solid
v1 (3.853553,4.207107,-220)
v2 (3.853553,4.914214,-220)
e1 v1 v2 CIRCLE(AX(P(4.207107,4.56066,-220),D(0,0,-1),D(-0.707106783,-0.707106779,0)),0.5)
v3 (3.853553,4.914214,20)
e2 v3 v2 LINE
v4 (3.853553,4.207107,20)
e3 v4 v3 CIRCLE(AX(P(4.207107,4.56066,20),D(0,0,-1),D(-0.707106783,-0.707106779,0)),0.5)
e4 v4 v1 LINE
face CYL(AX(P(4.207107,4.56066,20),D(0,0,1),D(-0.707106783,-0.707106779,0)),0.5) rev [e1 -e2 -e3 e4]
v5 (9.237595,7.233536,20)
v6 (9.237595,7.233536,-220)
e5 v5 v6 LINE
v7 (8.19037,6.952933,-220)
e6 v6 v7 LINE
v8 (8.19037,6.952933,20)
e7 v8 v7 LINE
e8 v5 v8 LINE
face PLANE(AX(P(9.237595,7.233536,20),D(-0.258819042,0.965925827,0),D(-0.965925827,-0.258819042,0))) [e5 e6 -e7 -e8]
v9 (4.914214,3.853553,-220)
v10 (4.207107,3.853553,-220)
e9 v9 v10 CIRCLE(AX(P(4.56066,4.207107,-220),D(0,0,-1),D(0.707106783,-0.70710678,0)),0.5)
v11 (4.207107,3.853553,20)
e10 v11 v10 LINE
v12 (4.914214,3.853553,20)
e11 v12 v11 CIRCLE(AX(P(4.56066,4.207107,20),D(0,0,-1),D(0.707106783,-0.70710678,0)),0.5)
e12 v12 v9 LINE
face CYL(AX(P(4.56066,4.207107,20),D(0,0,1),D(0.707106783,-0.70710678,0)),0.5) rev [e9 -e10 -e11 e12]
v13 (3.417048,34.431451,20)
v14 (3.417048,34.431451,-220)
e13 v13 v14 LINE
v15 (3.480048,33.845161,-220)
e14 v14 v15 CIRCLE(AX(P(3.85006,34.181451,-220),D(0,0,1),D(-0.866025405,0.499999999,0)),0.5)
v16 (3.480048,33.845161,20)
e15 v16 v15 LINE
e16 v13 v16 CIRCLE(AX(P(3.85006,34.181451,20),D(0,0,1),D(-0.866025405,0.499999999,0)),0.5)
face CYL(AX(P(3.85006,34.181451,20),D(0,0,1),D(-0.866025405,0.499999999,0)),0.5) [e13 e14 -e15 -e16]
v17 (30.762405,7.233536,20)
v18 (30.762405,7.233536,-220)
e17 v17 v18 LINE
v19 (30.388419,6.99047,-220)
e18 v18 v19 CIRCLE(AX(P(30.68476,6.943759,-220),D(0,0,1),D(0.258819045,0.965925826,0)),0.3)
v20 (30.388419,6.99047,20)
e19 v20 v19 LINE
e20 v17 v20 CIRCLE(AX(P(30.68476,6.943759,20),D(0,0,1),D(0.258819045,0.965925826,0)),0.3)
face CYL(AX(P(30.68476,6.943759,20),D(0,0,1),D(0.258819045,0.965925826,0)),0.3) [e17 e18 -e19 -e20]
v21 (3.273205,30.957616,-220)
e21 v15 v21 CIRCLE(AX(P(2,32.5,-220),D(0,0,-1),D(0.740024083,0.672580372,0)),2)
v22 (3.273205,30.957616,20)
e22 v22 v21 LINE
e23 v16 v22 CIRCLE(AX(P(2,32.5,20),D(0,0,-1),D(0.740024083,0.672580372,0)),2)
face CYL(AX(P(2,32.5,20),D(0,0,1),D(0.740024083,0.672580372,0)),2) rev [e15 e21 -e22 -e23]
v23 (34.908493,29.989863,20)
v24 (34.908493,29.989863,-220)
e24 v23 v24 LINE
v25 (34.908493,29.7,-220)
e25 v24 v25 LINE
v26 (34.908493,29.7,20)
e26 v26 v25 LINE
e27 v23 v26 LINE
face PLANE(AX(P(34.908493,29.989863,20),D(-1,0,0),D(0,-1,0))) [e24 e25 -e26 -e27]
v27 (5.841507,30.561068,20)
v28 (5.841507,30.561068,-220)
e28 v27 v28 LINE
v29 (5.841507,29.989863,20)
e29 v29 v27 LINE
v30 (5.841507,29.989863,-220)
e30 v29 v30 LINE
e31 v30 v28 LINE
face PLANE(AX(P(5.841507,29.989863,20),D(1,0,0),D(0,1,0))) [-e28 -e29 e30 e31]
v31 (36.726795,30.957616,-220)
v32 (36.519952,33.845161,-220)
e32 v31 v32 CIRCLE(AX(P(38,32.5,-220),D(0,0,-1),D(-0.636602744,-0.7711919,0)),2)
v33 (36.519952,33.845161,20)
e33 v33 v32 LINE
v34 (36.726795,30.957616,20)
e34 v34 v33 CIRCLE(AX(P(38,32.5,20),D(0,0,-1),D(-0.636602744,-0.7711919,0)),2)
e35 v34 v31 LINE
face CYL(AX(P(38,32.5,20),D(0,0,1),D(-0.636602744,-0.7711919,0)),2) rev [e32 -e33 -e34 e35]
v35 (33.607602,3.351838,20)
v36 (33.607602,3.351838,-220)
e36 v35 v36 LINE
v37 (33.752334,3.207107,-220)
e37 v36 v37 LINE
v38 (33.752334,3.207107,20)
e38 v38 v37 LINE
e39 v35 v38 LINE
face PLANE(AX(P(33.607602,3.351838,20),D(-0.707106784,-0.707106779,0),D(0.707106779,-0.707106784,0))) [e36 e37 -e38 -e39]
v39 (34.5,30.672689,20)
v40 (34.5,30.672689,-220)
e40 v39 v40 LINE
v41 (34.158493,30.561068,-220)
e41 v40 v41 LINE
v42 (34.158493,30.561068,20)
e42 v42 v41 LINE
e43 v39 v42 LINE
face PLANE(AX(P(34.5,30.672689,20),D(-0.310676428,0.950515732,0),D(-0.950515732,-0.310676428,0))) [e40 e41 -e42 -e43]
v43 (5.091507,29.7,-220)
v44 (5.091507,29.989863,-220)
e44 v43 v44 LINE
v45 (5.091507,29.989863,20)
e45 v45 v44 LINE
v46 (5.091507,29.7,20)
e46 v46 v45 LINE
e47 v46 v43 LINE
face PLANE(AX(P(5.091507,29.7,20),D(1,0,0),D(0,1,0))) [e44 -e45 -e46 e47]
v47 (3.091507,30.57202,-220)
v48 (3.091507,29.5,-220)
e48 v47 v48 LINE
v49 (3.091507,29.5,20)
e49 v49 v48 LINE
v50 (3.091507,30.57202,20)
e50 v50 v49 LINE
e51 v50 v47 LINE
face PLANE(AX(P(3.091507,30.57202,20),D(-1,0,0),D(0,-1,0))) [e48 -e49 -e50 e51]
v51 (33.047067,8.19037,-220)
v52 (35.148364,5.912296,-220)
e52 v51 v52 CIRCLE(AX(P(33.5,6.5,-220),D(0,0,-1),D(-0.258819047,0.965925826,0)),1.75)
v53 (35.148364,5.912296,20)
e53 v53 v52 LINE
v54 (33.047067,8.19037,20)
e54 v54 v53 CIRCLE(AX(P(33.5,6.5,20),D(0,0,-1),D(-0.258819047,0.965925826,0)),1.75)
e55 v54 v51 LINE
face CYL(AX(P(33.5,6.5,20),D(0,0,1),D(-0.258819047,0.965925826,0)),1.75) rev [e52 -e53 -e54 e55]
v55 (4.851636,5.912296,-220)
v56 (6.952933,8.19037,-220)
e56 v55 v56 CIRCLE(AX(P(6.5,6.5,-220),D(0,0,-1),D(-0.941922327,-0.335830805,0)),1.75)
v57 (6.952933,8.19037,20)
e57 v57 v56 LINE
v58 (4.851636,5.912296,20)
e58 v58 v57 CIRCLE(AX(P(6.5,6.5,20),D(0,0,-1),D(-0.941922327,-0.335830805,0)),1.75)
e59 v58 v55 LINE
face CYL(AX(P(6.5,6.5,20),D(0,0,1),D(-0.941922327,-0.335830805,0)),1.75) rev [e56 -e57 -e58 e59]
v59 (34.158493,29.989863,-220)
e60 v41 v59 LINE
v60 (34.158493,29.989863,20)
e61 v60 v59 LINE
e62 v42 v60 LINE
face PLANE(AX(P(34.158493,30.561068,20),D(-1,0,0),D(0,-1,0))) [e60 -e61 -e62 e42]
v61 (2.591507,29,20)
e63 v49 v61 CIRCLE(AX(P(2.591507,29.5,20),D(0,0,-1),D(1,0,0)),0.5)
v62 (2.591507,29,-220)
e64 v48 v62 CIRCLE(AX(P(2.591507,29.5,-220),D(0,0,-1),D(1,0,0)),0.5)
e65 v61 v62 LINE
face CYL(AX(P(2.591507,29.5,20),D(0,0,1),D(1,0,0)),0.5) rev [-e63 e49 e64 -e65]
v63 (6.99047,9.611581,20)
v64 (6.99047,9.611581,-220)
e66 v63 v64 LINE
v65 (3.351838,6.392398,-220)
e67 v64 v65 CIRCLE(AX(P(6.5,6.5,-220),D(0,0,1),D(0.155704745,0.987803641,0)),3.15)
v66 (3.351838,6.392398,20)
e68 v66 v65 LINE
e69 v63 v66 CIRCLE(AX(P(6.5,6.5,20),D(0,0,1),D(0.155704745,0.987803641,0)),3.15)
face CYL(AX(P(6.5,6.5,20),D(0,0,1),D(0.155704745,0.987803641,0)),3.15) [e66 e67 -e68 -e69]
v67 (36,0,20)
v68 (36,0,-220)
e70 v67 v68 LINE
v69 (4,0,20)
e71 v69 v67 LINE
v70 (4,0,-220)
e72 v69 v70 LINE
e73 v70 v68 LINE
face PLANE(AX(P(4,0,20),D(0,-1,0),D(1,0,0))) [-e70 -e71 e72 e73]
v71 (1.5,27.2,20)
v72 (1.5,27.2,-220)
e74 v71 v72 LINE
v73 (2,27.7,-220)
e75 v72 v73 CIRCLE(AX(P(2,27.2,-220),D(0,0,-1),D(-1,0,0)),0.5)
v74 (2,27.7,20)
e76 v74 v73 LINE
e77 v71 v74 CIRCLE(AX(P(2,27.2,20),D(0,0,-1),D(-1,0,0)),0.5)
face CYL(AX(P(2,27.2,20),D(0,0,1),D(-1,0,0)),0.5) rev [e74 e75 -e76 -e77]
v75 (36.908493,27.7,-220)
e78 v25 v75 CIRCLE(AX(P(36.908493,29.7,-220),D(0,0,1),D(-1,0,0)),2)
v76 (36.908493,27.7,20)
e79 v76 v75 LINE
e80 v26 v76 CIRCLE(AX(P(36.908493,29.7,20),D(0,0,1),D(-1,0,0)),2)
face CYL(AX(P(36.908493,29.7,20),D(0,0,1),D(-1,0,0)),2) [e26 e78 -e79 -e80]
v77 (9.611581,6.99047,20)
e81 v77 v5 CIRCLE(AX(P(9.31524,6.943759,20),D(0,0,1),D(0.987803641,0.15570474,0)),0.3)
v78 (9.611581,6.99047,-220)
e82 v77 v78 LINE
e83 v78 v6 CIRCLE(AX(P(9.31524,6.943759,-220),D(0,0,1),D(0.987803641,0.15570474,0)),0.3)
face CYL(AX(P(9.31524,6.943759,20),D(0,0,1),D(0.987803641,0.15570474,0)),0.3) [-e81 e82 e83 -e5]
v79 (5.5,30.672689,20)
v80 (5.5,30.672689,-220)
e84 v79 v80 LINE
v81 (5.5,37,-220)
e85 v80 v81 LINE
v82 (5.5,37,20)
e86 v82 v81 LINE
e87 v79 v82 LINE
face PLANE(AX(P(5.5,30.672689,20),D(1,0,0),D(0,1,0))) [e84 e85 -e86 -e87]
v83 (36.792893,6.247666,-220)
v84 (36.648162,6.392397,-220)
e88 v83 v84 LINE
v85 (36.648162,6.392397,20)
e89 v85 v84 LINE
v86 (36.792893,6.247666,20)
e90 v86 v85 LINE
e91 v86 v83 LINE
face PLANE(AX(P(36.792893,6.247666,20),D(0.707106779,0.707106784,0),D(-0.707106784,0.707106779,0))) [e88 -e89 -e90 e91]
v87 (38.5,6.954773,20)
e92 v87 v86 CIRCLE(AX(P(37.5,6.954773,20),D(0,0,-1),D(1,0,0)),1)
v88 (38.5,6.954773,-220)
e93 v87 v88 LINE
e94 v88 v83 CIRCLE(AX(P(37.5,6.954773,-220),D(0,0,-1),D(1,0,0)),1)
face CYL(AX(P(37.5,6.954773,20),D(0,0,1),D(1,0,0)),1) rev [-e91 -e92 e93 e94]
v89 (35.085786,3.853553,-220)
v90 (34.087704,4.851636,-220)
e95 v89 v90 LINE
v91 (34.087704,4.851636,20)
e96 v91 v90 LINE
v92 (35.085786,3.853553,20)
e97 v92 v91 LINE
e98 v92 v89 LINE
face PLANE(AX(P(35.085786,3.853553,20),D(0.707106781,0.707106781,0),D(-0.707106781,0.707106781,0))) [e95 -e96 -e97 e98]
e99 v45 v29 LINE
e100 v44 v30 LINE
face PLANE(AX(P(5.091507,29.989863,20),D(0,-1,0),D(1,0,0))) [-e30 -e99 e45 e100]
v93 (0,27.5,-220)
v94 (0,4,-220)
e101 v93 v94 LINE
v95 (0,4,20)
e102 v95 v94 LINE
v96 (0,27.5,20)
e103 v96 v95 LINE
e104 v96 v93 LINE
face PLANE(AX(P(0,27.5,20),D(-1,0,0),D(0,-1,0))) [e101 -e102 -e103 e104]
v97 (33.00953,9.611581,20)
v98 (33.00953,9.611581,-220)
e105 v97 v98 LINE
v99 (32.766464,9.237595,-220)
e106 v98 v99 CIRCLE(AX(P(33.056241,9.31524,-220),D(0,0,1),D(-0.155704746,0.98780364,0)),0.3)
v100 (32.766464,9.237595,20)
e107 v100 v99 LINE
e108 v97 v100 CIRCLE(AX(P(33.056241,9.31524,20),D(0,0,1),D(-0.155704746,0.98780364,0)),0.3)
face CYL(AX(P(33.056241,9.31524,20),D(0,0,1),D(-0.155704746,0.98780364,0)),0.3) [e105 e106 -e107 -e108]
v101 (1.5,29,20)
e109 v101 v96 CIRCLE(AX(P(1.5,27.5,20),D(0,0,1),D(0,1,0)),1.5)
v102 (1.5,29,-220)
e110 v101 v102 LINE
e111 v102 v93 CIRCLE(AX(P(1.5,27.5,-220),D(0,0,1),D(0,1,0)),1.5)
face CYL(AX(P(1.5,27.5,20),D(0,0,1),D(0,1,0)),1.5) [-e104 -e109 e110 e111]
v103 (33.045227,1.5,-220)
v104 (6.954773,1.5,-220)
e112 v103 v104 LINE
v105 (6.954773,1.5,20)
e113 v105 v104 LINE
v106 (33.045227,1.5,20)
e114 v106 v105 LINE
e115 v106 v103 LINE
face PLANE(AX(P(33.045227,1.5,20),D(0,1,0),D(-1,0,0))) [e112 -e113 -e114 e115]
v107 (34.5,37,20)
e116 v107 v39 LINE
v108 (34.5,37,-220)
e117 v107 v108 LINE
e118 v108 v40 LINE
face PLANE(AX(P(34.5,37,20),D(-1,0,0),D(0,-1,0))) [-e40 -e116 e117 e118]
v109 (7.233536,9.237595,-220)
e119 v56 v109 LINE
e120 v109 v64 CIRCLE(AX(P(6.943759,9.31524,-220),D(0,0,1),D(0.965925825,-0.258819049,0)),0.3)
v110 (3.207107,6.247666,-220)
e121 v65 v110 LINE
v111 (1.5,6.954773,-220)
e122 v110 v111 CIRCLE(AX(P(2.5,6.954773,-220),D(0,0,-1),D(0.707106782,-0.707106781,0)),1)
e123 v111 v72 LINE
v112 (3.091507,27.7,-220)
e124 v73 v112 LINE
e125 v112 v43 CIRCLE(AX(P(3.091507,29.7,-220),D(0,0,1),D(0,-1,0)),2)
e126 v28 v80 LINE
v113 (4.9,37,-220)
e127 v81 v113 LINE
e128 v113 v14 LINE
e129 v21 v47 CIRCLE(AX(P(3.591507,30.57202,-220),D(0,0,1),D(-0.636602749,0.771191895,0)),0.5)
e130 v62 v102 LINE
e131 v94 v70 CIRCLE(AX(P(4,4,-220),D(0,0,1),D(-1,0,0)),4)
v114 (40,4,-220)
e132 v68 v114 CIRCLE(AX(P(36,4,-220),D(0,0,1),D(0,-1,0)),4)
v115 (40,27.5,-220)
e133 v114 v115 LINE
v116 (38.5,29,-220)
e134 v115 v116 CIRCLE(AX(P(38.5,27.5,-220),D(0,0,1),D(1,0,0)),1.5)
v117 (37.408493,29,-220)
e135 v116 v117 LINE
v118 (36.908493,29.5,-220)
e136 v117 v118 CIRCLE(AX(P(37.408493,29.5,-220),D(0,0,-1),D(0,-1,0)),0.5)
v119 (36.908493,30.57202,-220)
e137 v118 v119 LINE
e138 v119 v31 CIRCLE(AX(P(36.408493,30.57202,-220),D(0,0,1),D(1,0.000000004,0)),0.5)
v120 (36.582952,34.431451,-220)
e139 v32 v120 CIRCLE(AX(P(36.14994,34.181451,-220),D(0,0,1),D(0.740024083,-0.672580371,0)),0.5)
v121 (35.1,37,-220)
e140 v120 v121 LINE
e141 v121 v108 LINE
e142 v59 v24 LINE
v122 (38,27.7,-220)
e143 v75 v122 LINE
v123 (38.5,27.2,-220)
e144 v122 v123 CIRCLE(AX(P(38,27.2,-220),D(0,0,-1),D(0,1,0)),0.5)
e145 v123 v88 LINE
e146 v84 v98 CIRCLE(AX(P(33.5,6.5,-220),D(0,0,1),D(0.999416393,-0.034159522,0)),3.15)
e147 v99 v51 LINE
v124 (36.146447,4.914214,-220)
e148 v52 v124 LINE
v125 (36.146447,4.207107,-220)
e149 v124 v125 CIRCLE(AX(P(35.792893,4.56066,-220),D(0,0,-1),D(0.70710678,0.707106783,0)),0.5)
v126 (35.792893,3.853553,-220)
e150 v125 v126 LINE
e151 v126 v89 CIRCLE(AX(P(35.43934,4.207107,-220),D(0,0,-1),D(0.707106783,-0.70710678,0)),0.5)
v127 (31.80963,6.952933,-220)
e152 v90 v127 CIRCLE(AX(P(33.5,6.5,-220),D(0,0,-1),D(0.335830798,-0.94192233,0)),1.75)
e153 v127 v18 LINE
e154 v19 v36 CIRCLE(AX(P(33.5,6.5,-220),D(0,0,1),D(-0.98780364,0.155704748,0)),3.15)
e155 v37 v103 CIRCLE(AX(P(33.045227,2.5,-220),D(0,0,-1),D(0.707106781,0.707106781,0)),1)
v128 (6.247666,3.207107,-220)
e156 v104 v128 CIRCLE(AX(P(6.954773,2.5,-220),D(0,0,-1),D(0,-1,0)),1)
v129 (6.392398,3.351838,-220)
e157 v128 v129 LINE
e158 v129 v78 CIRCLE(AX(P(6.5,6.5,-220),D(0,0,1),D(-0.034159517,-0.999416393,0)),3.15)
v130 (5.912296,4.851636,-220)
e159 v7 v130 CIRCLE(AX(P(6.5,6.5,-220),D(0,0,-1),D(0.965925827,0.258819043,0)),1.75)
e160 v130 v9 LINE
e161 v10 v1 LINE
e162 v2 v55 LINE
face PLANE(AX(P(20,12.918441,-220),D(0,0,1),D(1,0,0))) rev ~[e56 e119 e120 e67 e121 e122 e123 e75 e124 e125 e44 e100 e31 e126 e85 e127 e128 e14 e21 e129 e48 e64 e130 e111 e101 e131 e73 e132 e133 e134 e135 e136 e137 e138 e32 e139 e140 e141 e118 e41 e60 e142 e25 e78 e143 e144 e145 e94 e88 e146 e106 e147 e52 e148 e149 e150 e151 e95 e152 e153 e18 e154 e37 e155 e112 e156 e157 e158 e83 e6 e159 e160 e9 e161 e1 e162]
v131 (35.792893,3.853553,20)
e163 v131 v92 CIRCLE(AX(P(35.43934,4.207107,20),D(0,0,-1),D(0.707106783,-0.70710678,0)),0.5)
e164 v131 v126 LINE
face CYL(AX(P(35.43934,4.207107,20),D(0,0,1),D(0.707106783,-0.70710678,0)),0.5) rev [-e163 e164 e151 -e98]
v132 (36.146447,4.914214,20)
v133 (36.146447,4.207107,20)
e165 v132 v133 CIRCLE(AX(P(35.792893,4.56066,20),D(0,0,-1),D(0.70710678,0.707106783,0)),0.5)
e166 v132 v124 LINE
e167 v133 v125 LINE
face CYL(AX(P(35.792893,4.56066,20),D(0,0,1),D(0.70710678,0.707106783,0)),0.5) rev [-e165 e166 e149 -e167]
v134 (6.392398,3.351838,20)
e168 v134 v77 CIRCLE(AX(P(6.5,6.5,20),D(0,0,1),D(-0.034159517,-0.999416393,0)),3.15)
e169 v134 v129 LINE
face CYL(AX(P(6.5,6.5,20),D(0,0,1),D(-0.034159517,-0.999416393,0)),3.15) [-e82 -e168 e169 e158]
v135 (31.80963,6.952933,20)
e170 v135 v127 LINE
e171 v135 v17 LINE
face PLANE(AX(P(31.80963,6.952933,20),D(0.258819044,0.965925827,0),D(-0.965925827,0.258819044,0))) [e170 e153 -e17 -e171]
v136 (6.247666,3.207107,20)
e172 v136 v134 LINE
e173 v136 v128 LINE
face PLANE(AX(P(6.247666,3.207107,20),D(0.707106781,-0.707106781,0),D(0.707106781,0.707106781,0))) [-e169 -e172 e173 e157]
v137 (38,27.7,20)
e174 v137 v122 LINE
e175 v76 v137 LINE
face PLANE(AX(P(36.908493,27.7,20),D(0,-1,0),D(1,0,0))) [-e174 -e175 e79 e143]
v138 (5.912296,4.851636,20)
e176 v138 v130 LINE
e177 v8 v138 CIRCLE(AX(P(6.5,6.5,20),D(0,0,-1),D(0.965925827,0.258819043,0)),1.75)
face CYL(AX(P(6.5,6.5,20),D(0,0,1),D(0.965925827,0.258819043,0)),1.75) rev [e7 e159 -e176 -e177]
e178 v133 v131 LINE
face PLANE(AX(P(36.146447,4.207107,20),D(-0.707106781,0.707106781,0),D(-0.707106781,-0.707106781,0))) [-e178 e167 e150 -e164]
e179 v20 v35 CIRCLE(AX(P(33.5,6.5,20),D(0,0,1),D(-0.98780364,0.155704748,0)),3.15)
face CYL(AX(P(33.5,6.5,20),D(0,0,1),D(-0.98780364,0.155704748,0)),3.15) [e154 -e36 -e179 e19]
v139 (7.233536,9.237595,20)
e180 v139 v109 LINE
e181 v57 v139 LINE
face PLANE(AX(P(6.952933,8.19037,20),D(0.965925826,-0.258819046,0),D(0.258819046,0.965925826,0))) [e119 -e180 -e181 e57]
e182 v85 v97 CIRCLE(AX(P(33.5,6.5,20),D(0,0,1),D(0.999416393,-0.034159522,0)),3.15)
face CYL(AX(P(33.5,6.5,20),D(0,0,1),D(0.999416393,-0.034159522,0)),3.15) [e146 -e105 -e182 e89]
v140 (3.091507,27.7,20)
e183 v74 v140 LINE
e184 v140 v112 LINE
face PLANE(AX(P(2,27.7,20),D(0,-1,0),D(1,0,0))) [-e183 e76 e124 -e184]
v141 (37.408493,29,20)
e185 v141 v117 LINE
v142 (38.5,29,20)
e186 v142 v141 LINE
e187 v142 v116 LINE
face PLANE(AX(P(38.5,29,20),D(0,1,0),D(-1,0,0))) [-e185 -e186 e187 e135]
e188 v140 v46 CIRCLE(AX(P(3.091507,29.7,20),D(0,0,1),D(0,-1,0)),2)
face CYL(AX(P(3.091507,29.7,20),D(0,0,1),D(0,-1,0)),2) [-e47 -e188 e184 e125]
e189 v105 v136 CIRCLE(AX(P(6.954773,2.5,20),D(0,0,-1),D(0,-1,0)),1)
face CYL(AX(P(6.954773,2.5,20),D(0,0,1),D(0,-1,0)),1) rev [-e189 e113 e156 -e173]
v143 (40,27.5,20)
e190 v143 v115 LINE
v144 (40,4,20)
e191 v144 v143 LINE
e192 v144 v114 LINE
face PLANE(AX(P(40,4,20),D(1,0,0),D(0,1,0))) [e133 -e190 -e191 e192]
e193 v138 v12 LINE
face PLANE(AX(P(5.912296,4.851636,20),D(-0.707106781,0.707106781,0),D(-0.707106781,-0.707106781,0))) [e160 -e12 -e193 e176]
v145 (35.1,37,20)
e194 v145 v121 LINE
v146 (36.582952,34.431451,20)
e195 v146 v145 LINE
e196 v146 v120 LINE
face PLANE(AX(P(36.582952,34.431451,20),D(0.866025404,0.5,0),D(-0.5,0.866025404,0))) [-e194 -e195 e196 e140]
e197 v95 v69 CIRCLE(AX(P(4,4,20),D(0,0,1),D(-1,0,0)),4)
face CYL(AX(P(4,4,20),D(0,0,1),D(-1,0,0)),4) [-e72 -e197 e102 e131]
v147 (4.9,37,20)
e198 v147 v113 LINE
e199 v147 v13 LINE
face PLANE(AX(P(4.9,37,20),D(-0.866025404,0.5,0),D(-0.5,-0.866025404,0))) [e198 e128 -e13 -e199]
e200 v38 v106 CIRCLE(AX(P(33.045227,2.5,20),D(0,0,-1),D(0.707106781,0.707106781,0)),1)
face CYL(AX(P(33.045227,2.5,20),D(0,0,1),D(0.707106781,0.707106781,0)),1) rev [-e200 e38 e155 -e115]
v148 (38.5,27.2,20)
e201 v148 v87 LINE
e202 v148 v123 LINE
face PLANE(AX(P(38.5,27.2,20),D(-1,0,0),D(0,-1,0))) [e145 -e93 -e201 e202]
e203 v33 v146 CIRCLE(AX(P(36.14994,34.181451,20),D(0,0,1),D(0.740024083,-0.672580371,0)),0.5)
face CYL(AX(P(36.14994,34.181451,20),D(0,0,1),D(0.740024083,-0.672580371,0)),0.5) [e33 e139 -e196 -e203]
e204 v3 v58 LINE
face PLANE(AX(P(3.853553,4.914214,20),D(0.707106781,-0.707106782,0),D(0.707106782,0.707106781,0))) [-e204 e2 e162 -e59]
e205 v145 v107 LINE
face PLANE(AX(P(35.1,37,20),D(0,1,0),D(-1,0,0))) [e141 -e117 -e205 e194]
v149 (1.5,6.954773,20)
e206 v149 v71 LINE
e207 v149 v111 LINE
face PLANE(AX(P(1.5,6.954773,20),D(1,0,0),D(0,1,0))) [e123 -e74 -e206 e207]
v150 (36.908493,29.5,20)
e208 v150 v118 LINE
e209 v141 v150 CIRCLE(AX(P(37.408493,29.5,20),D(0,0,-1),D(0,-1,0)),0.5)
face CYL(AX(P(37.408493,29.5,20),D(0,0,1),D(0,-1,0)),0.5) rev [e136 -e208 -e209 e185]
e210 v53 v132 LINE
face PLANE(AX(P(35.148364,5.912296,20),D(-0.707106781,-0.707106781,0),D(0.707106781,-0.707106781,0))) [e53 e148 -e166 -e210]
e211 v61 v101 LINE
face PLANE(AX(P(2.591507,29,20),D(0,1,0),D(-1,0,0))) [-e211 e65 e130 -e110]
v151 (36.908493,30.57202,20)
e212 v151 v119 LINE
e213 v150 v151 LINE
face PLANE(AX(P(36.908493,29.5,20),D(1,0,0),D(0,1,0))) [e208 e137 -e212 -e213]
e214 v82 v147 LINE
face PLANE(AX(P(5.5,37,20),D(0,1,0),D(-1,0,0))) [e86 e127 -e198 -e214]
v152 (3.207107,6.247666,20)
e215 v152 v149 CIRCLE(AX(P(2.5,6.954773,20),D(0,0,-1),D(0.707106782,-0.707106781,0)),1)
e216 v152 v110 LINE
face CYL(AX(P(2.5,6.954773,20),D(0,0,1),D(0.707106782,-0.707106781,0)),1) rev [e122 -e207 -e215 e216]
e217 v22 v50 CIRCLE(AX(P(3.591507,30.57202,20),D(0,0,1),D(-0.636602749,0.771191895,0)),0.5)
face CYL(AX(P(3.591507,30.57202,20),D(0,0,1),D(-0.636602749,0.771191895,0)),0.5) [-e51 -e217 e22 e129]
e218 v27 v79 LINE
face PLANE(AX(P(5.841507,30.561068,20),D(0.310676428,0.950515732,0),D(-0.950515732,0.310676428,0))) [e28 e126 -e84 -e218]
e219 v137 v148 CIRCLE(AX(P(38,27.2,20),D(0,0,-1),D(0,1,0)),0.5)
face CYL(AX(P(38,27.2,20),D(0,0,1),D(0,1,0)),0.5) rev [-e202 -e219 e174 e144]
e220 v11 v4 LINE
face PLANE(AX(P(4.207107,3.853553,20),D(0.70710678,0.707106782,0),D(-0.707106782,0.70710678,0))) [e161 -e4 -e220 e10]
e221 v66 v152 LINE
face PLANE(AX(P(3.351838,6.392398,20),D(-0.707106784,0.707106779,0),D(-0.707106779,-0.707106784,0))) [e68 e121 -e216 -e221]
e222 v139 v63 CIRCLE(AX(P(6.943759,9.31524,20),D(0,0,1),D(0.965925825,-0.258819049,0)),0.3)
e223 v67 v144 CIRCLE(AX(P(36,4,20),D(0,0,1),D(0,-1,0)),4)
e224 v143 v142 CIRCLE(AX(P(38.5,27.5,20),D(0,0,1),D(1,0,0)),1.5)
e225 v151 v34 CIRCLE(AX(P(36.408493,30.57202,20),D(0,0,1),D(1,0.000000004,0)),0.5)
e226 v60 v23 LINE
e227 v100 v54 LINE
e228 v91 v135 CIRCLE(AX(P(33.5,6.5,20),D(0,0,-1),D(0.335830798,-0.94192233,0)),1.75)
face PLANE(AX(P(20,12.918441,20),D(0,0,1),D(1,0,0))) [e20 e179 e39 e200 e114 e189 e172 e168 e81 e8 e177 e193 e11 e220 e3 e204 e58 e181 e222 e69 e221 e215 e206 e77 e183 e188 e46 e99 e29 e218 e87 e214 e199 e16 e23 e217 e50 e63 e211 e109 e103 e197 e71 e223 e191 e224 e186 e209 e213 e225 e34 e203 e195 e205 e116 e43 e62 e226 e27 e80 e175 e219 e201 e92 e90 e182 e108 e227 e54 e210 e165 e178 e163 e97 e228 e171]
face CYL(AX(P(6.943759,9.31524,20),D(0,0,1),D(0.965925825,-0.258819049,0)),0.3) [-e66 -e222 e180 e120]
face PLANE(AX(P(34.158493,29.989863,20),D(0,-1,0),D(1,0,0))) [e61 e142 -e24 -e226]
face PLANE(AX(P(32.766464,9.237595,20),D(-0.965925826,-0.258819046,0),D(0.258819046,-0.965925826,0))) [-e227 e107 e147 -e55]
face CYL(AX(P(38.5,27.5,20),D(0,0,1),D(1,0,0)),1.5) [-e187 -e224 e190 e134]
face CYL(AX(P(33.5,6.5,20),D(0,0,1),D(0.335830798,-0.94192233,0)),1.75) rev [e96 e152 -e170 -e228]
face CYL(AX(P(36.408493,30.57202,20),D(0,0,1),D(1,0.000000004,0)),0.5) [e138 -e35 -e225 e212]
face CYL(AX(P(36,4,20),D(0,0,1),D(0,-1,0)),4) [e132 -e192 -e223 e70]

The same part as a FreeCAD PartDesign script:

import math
import FreeCAD as App
import Part
import Sketcher
from FreeCAD import Vector
Q = App.Units.Quantity

doc = App.newDocument("Part")
body = doc.addObject("PartDesign::Body", "Body")

sketch1 = body.newObject("Sketcher::SketchObject", "Sketch")
sketch1.AttachmentSupport = (doc.getObject("XY_Plane"), [""])
sketch1.MapMode = "FlatFace"
sketch1.AttachmentOffset = App.Placement(Vector(0, 0, 20), App.Rotation())
sketch1.addGeometry(Part.LineSegment(Vector(4, 0, 0), Vector(36, 0, 0)), False)
sketch1.addGeometry(Part.ArcOfCircle(Part.Circle(Vector(36, 4, 0), Vector(0, 0, 1), 4), math.radians(-90), math.radians(0)), False)
sketch1.addGeometry(Part.LineSegment(Vector(40, 4, 0), Vector(40, 27.5, 0)), False)
sketch1.addGeometry(Part.ArcOfCircle(Part.Circle(Vector(38.5, 27.5, 0), Vector(0, 0, 1), 1.5), math.radians(0), math.radians(90)), False)
sketch1.addGeometry(Part.LineSegment(Vector(38.5, 29, 0), Vector(37.41, 29, 0)), False)
sketch1.addGeometry(Part.ArcOfCircle(Part.Circle(Vector(37.41, 29.5, 0), Vector(0, 0, 1), 0.5), math.radians(180), math.radians(270)), False)
sketch1.addGeometry(Part.LineSegment(Vector(36.91, 29.5, 0), Vector(36.91, 30.57, 0)), False)
sketch1.addGeometry(Part.ArcOfCircle(Part.Circle(Vector(36.41, 30.57, 0), Vector(0, 0, 1), 0.5), math.radians(0), math.radians(50)), False)
sketch1.addGeometry(Part.ArcOfCircle(Part.Circle(Vector(38, 32.5, 0), Vector(0, 0, 1), 2), math.radians(138), math.radians(230)), False)
sketch1.addGeometry(Part.ArcOfCircle(Part.Circle(Vector(36.15, 34.18, 0), Vector(0, 0, 1), 0.5), math.radians(-42), math.radians(30)), False)
sketch1.addGeometry(Part.LineSegment(Vector(36.58, 34.43, 0), Vector(35.1, 37, 0)), False)
sketch1.addGeometry(Part.LineSegment(Vector(35.1, 37, 0), Vector(34.5, 37, 0)), False)
sketch1.addGeometry(Part.LineSegment(Vector(34.5, 37, 0), Vector(34.5, 30.67, 0)), False)
sketch1.addGeometry(Part.LineSegment(Vector(34.5, 30.67, 0), Vector(34.16, 30.56, 0)), False)
sketch1.addGeometry(Part.LineSegment(Vector(34.16, 30.56, 0), Vector(34.16, 29.99, 0)), False)
sketch1.addGeometry(Part.LineSegment(Vector(34.16, 29.99, 0), Vector(34.91, 29.99, 0)), False)
sketch1.addGeometry(Part.LineSegment(Vector(34.91, 29.99, 0), Vector(34.91, 29.7, 0)), False)
sketch1.addGeometry(Part.ArcOfCircle(Part.Circle(Vector(36.91, 29.7, 0), Vector(0, 0, 1), 2), math.radians(180), math.radians(270)), False)
sketch1.addGeometry(Part.LineSegment(Vector(36.91, 27.7, 0), Vector(38, 27.7, 0)), False)
sketch1.addGeometry(Part.ArcOfCircle(Part.Circle(Vector(38, 27.2, 0), Vector(0, 0, 1), 0.5), math.radians(0), math.radians(90)), False)
sketch1.addGeometry(Part.LineSegment(Vector(38.5, 27.2, 0), Vector(38.5, 6.95, 0)), False)
sketch1.addGeometry(Part.ArcOfCircle(Part.Circle(Vector(37.5, 6.95, 0), Vector(0, 0, 1), 1), math.radians(-135), math.radians(0)), False)
sketch1.addGeometry(Part.LineSegment(Vector(36.79, 6.25, 0), Vector(36.65, 6.39, 0)), False)
sketch1.addGeometry(Part.ArcOfCircle(Part.Circle(Vector(33.5, 6.5, 0), Vector(0, 0, 1), 3.15), math.radians(-2), math.radians(99)), False)
sketch1.addGeometry(Part.ArcOfCircle(Part.Circle(Vector(33.06, 9.32, 0), Vector(0, 0, 1), 0.3), math.radians(99), math.radians(195)), False)
sketch1.addGeometry(Part.LineSegment(Vector(32.77, 9.24, 0), Vector(33.05, 8.19, 0)), False)
sketch1.addGeometry(Part.ArcOfCircle(Part.Circle(Vector(33.5, 6.5, 0), Vector(0, 0, 1), 1.75), math.radians(-20), math.radians(105)), False)
sketch1.addGeometry(Part.LineSegment(Vector(35.15, 5.91, 0), Vector(36.15, 4.91, 0)), False)
sketch1.addGeometry(Part.ArcOfCircle(Part.Circle(Vector(35.79, 4.56, 0), Vector(0, 0, 1), 0.5), math.radians(-45), math.radians(45)), False)
sketch1.addGeometry(Part.LineSegment(Vector(36.15, 4.21, 0), Vector(35.79, 3.85, 0)), False)
sketch1.addGeometry(Part.ArcOfCircle(Part.Circle(Vector(35.44, 4.21, 0), Vector(0, 0, 1), 0.5), math.radians(-135), math.radians(-45)), False)
sketch1.addGeometry(Part.LineSegment(Vector(35.09, 3.85, 0), Vector(34.09, 4.85, 0)), False)
sketch1.addGeometry(Part.ArcOfCircle(Part.Circle(Vector(33.5, 6.5, 0), Vector(0, 0, 1), 1.75), math.radians(165), math.radians(290)), False)
sketch1.addGeometry(Part.LineSegment(Vector(31.81, 6.95, 0), Vector(30.76, 7.23, 0)), False)
sketch1.addGeometry(Part.ArcOfCircle(Part.Circle(Vector(30.68, 6.94, 0), Vector(0, 0, 1), 0.3), math.radians(75), math.radians(171)), False)
sketch1.addGeometry(Part.ArcOfCircle(Part.Circle(Vector(33.5, 6.5, 0), Vector(0, 0, 1), 3.15), math.radians(171), math.radians(272)), False)
sketch1.addGeometry(Part.LineSegment(Vector(33.61, 3.35, 0), Vector(33.75, 3.21, 0)), False)
sketch1.addGeometry(Part.ArcOfCircle(Part.Circle(Vector(33.05, 2.5, 0), Vector(0, 0, 1), 1), math.radians(-90), math.radians(45)), False)
sketch1.addGeometry(Part.LineSegment(Vector(33.05, 1.5, 0), Vector(6.95, 1.5, 0)), False)
sketch1.addGeometry(Part.ArcOfCircle(Part.Circle(Vector(6.95, 2.5, 0), Vector(0, 0, 1), 1), math.radians(135), math.radians(270)), False)
sketch1.addGeometry(Part.LineSegment(Vector(6.25, 3.21, 0), Vector(6.39, 3.35, 0)), False)
sketch1.addGeometry(Part.ArcOfCircle(Part.Circle(Vector(6.5, 6.5, 0), Vector(0, 0, 1), 3.15), math.radians(-92), math.radians(9)), False)
sketch1.addGeometry(Part.ArcOfCircle(Part.Circle(Vector(9.32, 6.94, 0), Vector(0, 0, 1), 0.3), math.radians(9), math.radians(105)), False)
sketch1.addGeometry(Part.LineSegment(Vector(9.24, 7.23, 0), Vector(8.19, 6.95, 0)), False)
sketch1.addGeometry(Part.ArcOfCircle(Part.Circle(Vector(6.5, 6.5, 0), Vector(0, 0, 1), 1.75), math.radians(-110), math.radians(15)), False)
sketch1.addGeometry(Part.LineSegment(Vector(5.91, 4.85, 0), Vector(4.91, 3.85, 0)), False)
sketch1.addGeometry(Part.ArcOfCircle(Part.Circle(Vector(4.56, 4.21, 0), Vector(0, 0, 1), 0.5), math.radians(-135), math.radians(-45)), False)
sketch1.addGeometry(Part.LineSegment(Vector(4.21, 3.85, 0), Vector(3.85, 4.21, 0)), False)
sketch1.addGeometry(Part.ArcOfCircle(Part.Circle(Vector(4.21, 4.56, 0), Vector(0, 0, 1), 0.5), math.radians(135), math.radians(225)), False)
sketch1.addGeometry(Part.LineSegment(Vector(3.85, 4.91, 0), Vector(4.85, 5.91, 0)), False)
sketch1.addGeometry(Part.ArcOfCircle(Part.Circle(Vector(6.5, 6.5, 0), Vector(0, 0, 1), 1.75), math.radians(75), math.radians(200)), False)
sketch1.addGeometry(Part.LineSegment(Vector(6.95, 8.19, 0), Vector(7.23, 9.24, 0)), False)
sketch1.addGeometry(Part.ArcOfCircle(Part.Circle(Vector(6.94, 9.32, 0), Vector(0, 0, 1), 0.3), math.radians(-15), math.radians(81)), False)
sketch1.addGeometry(Part.ArcOfCircle(Part.Circle(Vector(6.5, 6.5, 0), Vector(0, 0, 1), 3.15), math.radians(81), math.radians(182)), False)
sketch1.addGeometry(Part.LineSegment(Vector(3.35, 6.39, 0), Vector(3.21, 6.25, 0)), False)
sketch1.addGeometry(Part.ArcOfCircle(Part.Circle(Vector(2.5, 6.95, 0), Vector(0, 0, 1), 1), math.radians(180), math.radians(315)), False)
sketch1.addGeometry(Part.LineSegment(Vector(1.5, 6.95, 0), Vector(1.5, 27.2, 0)), False)
sketch1.addGeometry(Part.ArcOfCircle(Part.Circle(Vector(2, 27.2, 0), Vector(0, 0, 1), 0.5), math.radians(90), math.radians(180)), False)
sketch1.addGeometry(Part.LineSegment(Vector(2, 27.7, 0), Vector(3.09, 27.7, 0)), False)
sketch1.addGeometry(Part.ArcOfCircle(Part.Circle(Vector(3.09, 29.7, 0), Vector(0, 0, 1), 2), math.radians(-90), math.radians(0)), False)
sketch1.addGeometry(Part.LineSegment(Vector(5.09, 29.7, 0), Vector(5.09, 29.99, 0)), False)
sketch1.addGeometry(Part.LineSegment(Vector(5.09, 29.99, 0), Vector(5.84, 29.99, 0)), False)
sketch1.addGeometry(Part.LineSegment(Vector(5.84, 29.99, 0), Vector(5.84, 30.56, 0)), False)
sketch1.addGeometry(Part.LineSegment(Vector(5.84, 30.56, 0), Vector(5.5, 30.67, 0)), False)
sketch1.addGeometry(Part.LineSegment(Vector(5.5, 30.67, 0), Vector(5.5, 37, 0)), False)
sketch1.addGeometry(Part.LineSegment(Vector(5.5, 37, 0), Vector(4.9, 37, 0)), False)
sketch1.addGeometry(Part.LineSegment(Vector(4.9, 37, 0), Vector(3.42, 34.43, 0)), False)
sketch1.addGeometry(Part.ArcOfCircle(Part.Circle(Vector(3.85, 34.18, 0), Vector(0, 0, 1), 0.5), math.radians(150), math.radians(222)), False)
sketch1.addGeometry(Part.ArcOfCircle(Part.Circle(Vector(2, 32.5, 0), Vector(0, 0, 1), 2), math.radians(-50), math.radians(42)), False)
sketch1.addGeometry(Part.ArcOfCircle(Part.Circle(Vector(3.59, 30.57, 0), Vector(0, 0, 1), 0.5), math.radians(130), math.radians(180)), False)
sketch1.addGeometry(Part.LineSegment(Vector(3.09, 30.57, 0), Vector(3.09, 29.5, 0)), False)
sketch1.addGeometry(Part.ArcOfCircle(Part.Circle(Vector(2.59, 29.5, 0), Vector(0, 0, 1), 0.5), math.radians(-90), math.radians(0)), False)
sketch1.addGeometry(Part.LineSegment(Vector(2.59, 29, 0), Vector(1.5, 29, 0)), False)
sketch1.addGeometry(Part.ArcOfCircle(Part.Circle(Vector(1.5, 27.5, 0), Vector(0, 0, 1), 1.5), math.radians(90), math.radians(180)), False)
sketch1.addGeometry(Part.LineSegment(Vector(0, 27.5, 0), Vector(0, 4, 0)), False)
sketch1.addGeometry(Part.ArcOfCircle(Part.Circle(Vector(4, 4, 0), Vector(0, 0, 1), 4), math.radians(180), math.radians(270)), False)
sketch1.addConstraint(Sketcher.Constraint("Tangent", 0, 2, 1, 1))
sketch1.addConstraint(Sketcher.Constraint("Tangent", 1, 2, 2, 1))
sketch1.addConstraint(Sketcher.Constraint("Tangent", 2, 2, 3, 1))
sketch1.addConstraint(Sketcher.Constraint("Tangent", 3, 2, 4, 1))
sketch1.addConstraint(Sketcher.Constraint("Tangent", 4, 2, 5, 2))
sketch1.addConstraint(Sketcher.Constraint("Tangent", 5, 1, 6, 1))
sketch1.addConstraint(Sketcher.Constraint("Tangent", 6, 2, 7, 1))
sketch1.addConstraint(Sketcher.Constraint("Tangent", 7, 2, 8, 2))
sketch1.addConstraint(Sketcher.Constraint("Tangent", 8, 1, 9, 1))
sketch1.addConstraint(Sketcher.Constraint("Tangent", 9, 2, 10, 1))
sketch1.addConstraint(Sketcher.Constraint("Coincident", 10, 2, 11, 1))
sketch1.addConstraint(Sketcher.Constraint("Coincident", 11, 2, 12, 1))
sketch1.addConstraint(Sketcher.Constraint("Coincident", 12, 2, 13, 1))
sketch1.addConstraint(Sketcher.Constraint("Coincident", 13, 2, 14, 1))
sketch1.addConstraint(Sketcher.Constraint("Coincident", 14, 2, 15, 1))
sketch1.addConstraint(Sketcher.Constraint("Coincident", 15, 2, 16, 1))
sketch1.addConstraint(Sketcher.Constraint("Tangent", 16, 2, 17, 1))
sketch1.addConstraint(Sketcher.Constraint("Tangent", 17, 2, 18, 1))
sketch1.addConstraint(Sketcher.Constraint("Tangent", 18, 2, 19, 2))
sketch1.addConstraint(Sketcher.Constraint("Tangent", 19, 1, 20, 1))
sketch1.addConstraint(Sketcher.Constraint("Tangent", 20, 2, 21, 2))
sketch1.addConstraint(Sketcher.Constraint("Tangent", 21, 1, 22, 1))
sketch1.addConstraint(Sketcher.Constraint("Coincident", 22, 2, 23, 1))
sketch1.addConstraint(Sketcher.Constraint("Tangent", 23, 2, 24, 1))
sketch1.addConstraint(Sketcher.Constraint("Tangent", 24, 2, 25, 1))
sketch1.addConstraint(Sketcher.Constraint("Coincident", 25, 2, 26, 2))
sketch1.addConstraint(Sketcher.Constraint("Coincident", 26, 1, 27, 1))
sketch1.addConstraint(Sketcher.Constraint("Tangent", 27, 2, 28, 2))
sketch1.addConstraint(Sketcher.Constraint("Tangent", 28, 1, 29, 1))
sketch1.addConstraint(Sketcher.Constraint("Tangent", 29, 2, 30, 2))
sketch1.addConstraint(Sketcher.Constraint("Tangent", 30, 1, 31, 1))
sketch1.addConstraint(Sketcher.Constraint("Coincident", 31, 2, 32, 2))
sketch1.addConstraint(Sketcher.Constraint("Coincident", 32, 1, 33, 1))
sketch1.addConstraint(Sketcher.Constraint("Tangent", 33, 2, 34, 1))
sketch1.addConstraint(Sketcher.Constraint("Tangent", 34, 2, 35, 1))
sketch1.addConstraint(Sketcher.Constraint("Coincident", 35, 2, 36, 1))
sketch1.addConstraint(Sketcher.Constraint("Tangent", 36, 2, 37, 2))
sketch1.addConstraint(Sketcher.Constraint("Tangent", 37, 1, 38, 1))
sketch1.addConstraint(Sketcher.Constraint("Tangent", 38, 2, 39, 2))
sketch1.addConstraint(Sketcher.Constraint("Tangent", 39, 1, 40, 1))
sketch1.addConstraint(Sketcher.Constraint("Coincident", 40, 2, 41, 1))
sketch1.addConstraint(Sketcher.Constraint("Tangent", 41, 2, 42, 1))
sketch1.addConstraint(Sketcher.Constraint("Tangent", 42, 2, 43, 1))
sketch1.addConstraint(Sketcher.Constraint("Coincident", 43, 2, 44, 2))
sketch1.addConstraint(Sketcher.Constraint("Coincident", 44, 1, 45, 1))
sketch1.addConstraint(Sketcher.Constraint("Tangent", 45, 2, 46, 2))
sketch1.addConstraint(Sketcher.Constraint("Tangent", 46, 1, 47, 1))
sketch1.addConstraint(Sketcher.Constraint("Tangent", 47, 2, 48, 2))
sketch1.addConstraint(Sketcher.Constraint("Tangent", 48, 1, 49, 1))
sketch1.addConstraint(Sketcher.Constraint("Coincident", 49, 2, 50, 2))
sketch1.addConstraint(Sketcher.Constraint("Coincident", 50, 1, 51, 1))
sketch1.addConstraint(Sketcher.Constraint("Tangent", 51, 2, 52, 1))
sketch1.addConstraint(Sketcher.Constraint("Tangent", 52, 2, 53, 1))
sketch1.addConstraint(Sketcher.Constraint("Coincident", 53, 2, 54, 1))
sketch1.addConstraint(Sketcher.Constraint("Tangent", 54, 2, 55, 2))
sketch1.addConstraint(Sketcher.Constraint("Tangent", 55, 1, 56, 1))
sketch1.addConstraint(Sketcher.Constraint("Tangent", 56, 2, 57, 2))
sketch1.addConstraint(Sketcher.Constraint("Tangent", 57, 1, 58, 1))
sketch1.addConstraint(Sketcher.Constraint("Tangent", 58, 2, 59, 1))
sketch1.addConstraint(Sketcher.Constraint("Tangent", 59, 2, 60, 1))
sketch1.addConstraint(Sketcher.Constraint("Coincident", 60, 2, 61, 1))
sketch1.addConstraint(Sketcher.Constraint("Coincident", 61, 2, 62, 1))
sketch1.addConstraint(Sketcher.Constraint("Coincident", 62, 2, 63, 1))
sketch1.addConstraint(Sketcher.Constraint("Coincident", 63, 2, 64, 1))
sketch1.addConstraint(Sketcher.Constraint("Coincident", 64, 2, 65, 1))
sketch1.addConstraint(Sketcher.Constraint("Coincident", 65, 2, 66, 1))
sketch1.addConstraint(Sketcher.Constraint("Tangent", 66, 2, 67, 1))
sketch1.addConstraint(Sketcher.Constraint("Tangent", 67, 2, 68, 2))
sketch1.addConstraint(Sketcher.Constraint("Tangent", 68, 1, 69, 1))
sketch1.addConstraint(Sketcher.Constraint("Tangent", 69, 2, 70, 1))
sketch1.addConstraint(Sketcher.Constraint("Tangent", 70, 2, 71, 2))
sketch1.addConstraint(Sketcher.Constraint("Tangent", 71, 1, 72, 1))
sketch1.addConstraint(Sketcher.Constraint("Tangent", 72, 2, 73, 1))
sketch1.addConstraint(Sketcher.Constraint("Tangent", 73, 2, 74, 1))
sketch1.addConstraint(Sketcher.Constraint("Tangent", 74, 2, 75, 1))
sketch1.addConstraint(Sketcher.Constraint("Tangent", 75, 2, 0, 1))
sketch1.addConstraint(Sketcher.Constraint("Horizontal", 0))
sketch1.addConstraint(Sketcher.Constraint("Vertical", 2))
sketch1.addConstraint(Sketcher.Constraint("Horizontal", 4))
sketch1.addConstraint(Sketcher.Constraint("Vertical", 6))
sketch1.addConstraint(Sketcher.Constraint("Horizontal", 11))
sketch1.addConstraint(Sketcher.Constraint("Vertical", 12))
sketch1.addConstraint(Sketcher.Constraint("Vertical", 14))
sketch1.addConstraint(Sketcher.Constraint("Horizontal", 15))
sketch1.addConstraint(Sketcher.Constraint("Vertical", 16))
sketch1.addConstraint(Sketcher.Constraint("Horizontal", 18))
sketch1.addConstraint(Sketcher.Constraint("Vertical", 20))
sketch1.addConstraint(Sketcher.Constraint("Horizontal", 38))
sketch1.addConstraint(Sketcher.Constraint("Vertical", 56))
sketch1.addConstraint(Sketcher.Constraint("Horizontal", 58))
sketch1.addConstraint(Sketcher.Constraint("Vertical", 60))
sketch1.addConstraint(Sketcher.Constraint("Horizontal", 61))
sketch1.addConstraint(Sketcher.Constraint("Vertical", 62))
sketch1.addConstraint(Sketcher.Constraint("Vertical", 64))
sketch1.addConstraint(Sketcher.Constraint("Horizontal", 65))
sketch1.addConstraint(Sketcher.Constraint("Vertical", 70))
sketch1.addConstraint(Sketcher.Constraint("Horizontal", 72))
sketch1.addConstraint(Sketcher.Constraint("Vertical", 74))
sketch1.addConstraint(Sketcher.Constraint("Coincident", 26, 3, 23, 3))
sketch1.addConstraint(Sketcher.Constraint("Coincident", 32, 3, 23, 3))
sketch1.addConstraint(Sketcher.Constraint("Coincident", 35, 3, 23, 3))
sketch1.addConstraint(Sketcher.Constraint("Coincident", 44, 3, 41, 3))
sketch1.addConstraint(Sketcher.Constraint("Coincident", 50, 3, 41, 3))
sketch1.addConstraint(Sketcher.Constraint("Coincident", 53, 3, 41, 3))
sketch1.addConstraint(Sketcher.Constraint("Equal", 5, 7))
sketch1.addConstraint(Sketcher.Constraint("Equal", 7, 9))
sketch1.addConstraint(Sketcher.Constraint("Equal", 8, 17))
sketch1.addConstraint(Sketcher.Constraint("Equal", 9, 19))
sketch1.addConstraint(Sketcher.Constraint("Equal", 19, 28))
sketch1.addConstraint(Sketcher.Constraint("Equal", 28, 30))
sketch1.addConstraint(Sketcher.Constraint("Equal", 26, 32))
sketch1.addConstraint(Sketcher.Constraint("Equal", 24, 34))
sketch1.addConstraint(Sketcher.Constraint("Equal", 23, 35))
sketch1.addConstraint(Sketcher.Constraint("Equal", 21, 37))
sketch1.addConstraint(Sketcher.Constraint("Equal", 37, 39))
sketch1.addConstraint(Sketcher.Constraint("Equal", 35, 41))
sketch1.addConstraint(Sketcher.Constraint("Equal", 34, 42))
sketch1.addConstraint(Sketcher.Constraint("Equal", 32, 44))
sketch1.addConstraint(Sketcher.Constraint("Equal", 30, 46))
sketch1.addConstraint(Sketcher.Constraint("Equal", 46, 48))
sketch1.addConstraint(Sketcher.Constraint("Equal", 44, 50))
sketch1.addConstraint(Sketcher.Constraint("Equal", 42, 52))
sketch1.addConstraint(Sketcher.Constraint("Equal", 41, 53))
sketch1.addConstraint(Sketcher.Constraint("Equal", 39, 55))
sketch1.addConstraint(Sketcher.Constraint("Equal", 48, 57))
sketch1.addConstraint(Sketcher.Constraint("Equal", 17, 59))
sketch1.addConstraint(Sketcher.Constraint("Equal", 57, 67))
sketch1.addConstraint(Sketcher.Constraint("Equal", 59, 68))
sketch1.addConstraint(Sketcher.Constraint("Equal", 67, 69))
sketch1.addConstraint(Sketcher.Constraint("Equal", 69, 71))
sketch1.addConstraint(Sketcher.Constraint("Equal", 3, 73))
sketch1.addConstraint(Sketcher.Constraint("Equal", 1, 75))
sketch1.addConstraint(Sketcher.Constraint("PointOnObject", 0, 2, -1))
sketch1.addConstraint(Sketcher.Constraint("PointOnObject", 73, 2, -2))
sketch1.addConstraint(Sketcher.Constraint("Parallel", 22, 27))
sketch1.addConstraint(Sketcher.Constraint("Perpendicular", 27, 29))
sketch1.addConstraint(Sketcher.Constraint("Perpendicular", 29, 31))
sketch1.addConstraint(Sketcher.Constraint("Parallel", 31, 36))
sketch1.addConstraint(Sketcher.Constraint("Perpendicular", 36, 40))
sketch1.addConstraint(Sketcher.Constraint("Perpendicular", 25, 43))
sketch1.addConstraint(Sketcher.Constraint("Parallel", 40, 45))
sketch1.addConstraint(Sketcher.Constraint("Perpendicular", 45, 47))
sketch1.addConstraint(Sketcher.Constraint("Perpendicular", 47, 49))
sketch1.addConstraint(Sketcher.Constraint("Perpendicular", 33, 51))
sketch1.addConstraint(Sketcher.Constraint("Parallel", 49, 54))
sketch1.addConstraint(Sketcher.Constraint("Horizontal", 35, 3, 41, 3))
sketch1.addConstraint(Sketcher.Constraint("Horizontal", 34, 3, 42, 3))
sketch1.addConstraint(Sketcher.Constraint("Horizontal", 30, 3, 46, 3))
sketch1.addConstraint(Sketcher.Constraint("Horizontal", 28, 3, 48, 3))
sketch1.addConstraint(Sketcher.Constraint("Horizontal", 24, 3, 52, 3))
sketch1.addConstraint(Sketcher.Constraint("Horizontal", 21, 3, 55, 3))
sketch1.addConstraint(Sketcher.Constraint("Horizontal", 19, 3, 57, 3))
sketch1.addConstraint(Sketcher.Constraint("Horizontal", 9, 3, 67, 3))
sketch1.addConstraint(Sketcher.Constraint("Horizontal", 8, 3, 68, 3))
sketch1.addConstraint(Sketcher.Constraint("Horizontal", 7, 3, 69, 3))
sketch1.addConstraint(Sketcher.Constraint("Horizontal", 5, 3, 71, 3))
sketch1.addConstraint(Sketcher.Constraint("Horizontal", 46, 3, 28, 1))
sketch1.addConstraint(Sketcher.Constraint("Horizontal", 29, 2, 30, 1))
sketch1.addConstraint(Sketcher.Constraint("Horizontal", 35, 2, 40, 2))
sketch1.addConstraint(Sketcher.Constraint("Horizontal", 33, 2, 42, 2))
sketch1.addConstraint(Sketcher.Constraint("Horizontal", 31, 2, 44, 1))
sketch1.addConstraint(Sketcher.Constraint("Horizontal", 22, 2, 53, 2))
sketch1.addConstraint(Sketcher.Constraint("Horizontal", 15, 2, 60, 2))
sketch1.addConstraint(Sketcher.Constraint("Horizontal", 13, 2, 62, 2))
sketch1.addConstraint(Sketcher.Constraint("Horizontal", 12, 2, 63, 2))
sketch1.addConstraint(Sketcher.Constraint("Horizontal", 11, 2, 64, 2))
sketch1.addConstraint(Sketcher.Constraint("Horizontal", 9, 2, 66, 2))
sketch1.addConstraint(Sketcher.Constraint("Vertical", 8, 3, 19, 3))
sketch1.addConstraint(Sketcher.Constraint("Vertical", 57, 3, 68, 3))
sketch1.addConstraint(Sketcher.Constraint("Vertical", 17, 3, 5, 1))
sketch1.addConstraint(Sketcher.Constraint("Vertical", 3, 2, 19, 1))
sketch1.addConstraint(Sketcher.Constraint("Vertical", 73, 3, 55, 1))
sketch1.addConstraint(Sketcher.Constraint("Vertical", 58, 2, 69, 2))
sketch1.addConstraint(Sketcher.Constraint("Equal", 15, 61))
sketch1.addConstraint(Sketcher.Constraint("Equal", 11, 65))
sketch1.addConstraint(Sketcher.Constraint("Equal", 27, 31))
sketch1.addConstraint(Sketcher.Constraint("Equal", 25, 33))
sketch1.addConstraint(Sketcher.Constraint("Equal", 22, 36))
sketch1.addConstraint(Sketcher.Constraint("Radius", 1, Q("4 mm")))
sketch1.addConstraint(Sketcher.Constraint("Radius", 8, Q("2 mm")))
sketch1.addConstraint(Sketcher.Constraint("Radius", 21, Q("1 mm")))
sketch1.addConstraint(Sketcher.Constraint("Radius", 3, Q("1.5 mm")))
sketch1.addConstraint(Sketcher.Constraint("Radius", 5, Q("0.5 mm")))
sketch1.addConstraint(Sketcher.Constraint("Radius", 24, Q("0.3 mm")))
sketch1.addConstraint(Sketcher.Constraint("DistanceX", 0, 1, 0, 2, Q("32 mm")))
sketch1.addConstraint(Sketcher.Constraint("Angle", 10, Q("120 deg")))
sketch1.addConstraint(Sketcher.Constraint("Angle", 25, Q("-75 deg")))
sketch1.addConstraint(Sketcher.Constraint("Radius", 23, Q("3.15 mm")))
sketch1.addConstraint(Sketcher.Constraint("Radius", 26, Q("1.75 mm")))
sketch1.addConstraint(Sketcher.Constraint("DistanceX", 11, 2, 11, 1, Q("0.6 mm")))
sketch1.addConstraint(Sketcher.Constraint("DistanceY", 2, 1, 2, 2, Q("23.5 mm")))
sketch1.addConstraint(Sketcher.Constraint("DistanceY", -1, 1, 10, 2, Q("37 mm")))
sketch1.addConstraint(Sketcher.Constraint("Angle", 13, Q("-161.9 deg")))
sketch1.addConstraint(Sketcher.Constraint("DistanceX", 15, 1, 15, 2, Q("0.75 mm")))
sketch1.addConstraint(Sketcher.Constraint("DistanceY", -1, 1, 8, 3, Q("32.5 mm")))
sketch1.addConstraint(Sketcher.Constraint("DistanceY", -1, 1, 17, 3, Q("29.7 mm")))
sketch1.addConstraint(Sketcher.Constraint("DistanceX", -1, 1, 23, 3, Q("33.5 mm")))
sketch1.addConstraint(Sketcher.Constraint("DistanceY", -1, 1, 23, 3, Q("6.5 mm")))
sketch1.addConstraint(Sketcher.Constraint("DistanceY", -1, 1, 37, 3, Q("2.5 mm")))
sketch1.addConstraint(Sketcher.Constraint("DistanceX", -1, 1, 10, 2, Q("35.1 mm")))
sketch1.addConstraint(Sketcher.Constraint("Distance", 27, Q("1.411502 mm")))
sketch1.addConstraint(Sketcher.Constraint("DistanceY", 6, 1, 6, 2, Q("1.07202 mm")))
sketch1.addConstraint(Sketcher.Constraint("DistanceY", 12, 2, 12, 1, Q("6.327311 mm")))
sketch1.addConstraint(Sketcher.Constraint("Distance", 22, Q("0.204681 mm")))
sketch1.addConstraint(Sketcher.Constraint("DistanceY", 14, 2, 14, 1, Q("0.571205 mm")))
sketch1.addConstraint(Sketcher.Constraint("DistanceX", -1, 1, 24, 3, Q("33.056241 mm")))
pad1 = body.newObject("PartDesign::Pad", "Pad")
pad1.Profile = sketch1
pad1.Length = 240
pad1.Reversed = True

doc.recompute()
